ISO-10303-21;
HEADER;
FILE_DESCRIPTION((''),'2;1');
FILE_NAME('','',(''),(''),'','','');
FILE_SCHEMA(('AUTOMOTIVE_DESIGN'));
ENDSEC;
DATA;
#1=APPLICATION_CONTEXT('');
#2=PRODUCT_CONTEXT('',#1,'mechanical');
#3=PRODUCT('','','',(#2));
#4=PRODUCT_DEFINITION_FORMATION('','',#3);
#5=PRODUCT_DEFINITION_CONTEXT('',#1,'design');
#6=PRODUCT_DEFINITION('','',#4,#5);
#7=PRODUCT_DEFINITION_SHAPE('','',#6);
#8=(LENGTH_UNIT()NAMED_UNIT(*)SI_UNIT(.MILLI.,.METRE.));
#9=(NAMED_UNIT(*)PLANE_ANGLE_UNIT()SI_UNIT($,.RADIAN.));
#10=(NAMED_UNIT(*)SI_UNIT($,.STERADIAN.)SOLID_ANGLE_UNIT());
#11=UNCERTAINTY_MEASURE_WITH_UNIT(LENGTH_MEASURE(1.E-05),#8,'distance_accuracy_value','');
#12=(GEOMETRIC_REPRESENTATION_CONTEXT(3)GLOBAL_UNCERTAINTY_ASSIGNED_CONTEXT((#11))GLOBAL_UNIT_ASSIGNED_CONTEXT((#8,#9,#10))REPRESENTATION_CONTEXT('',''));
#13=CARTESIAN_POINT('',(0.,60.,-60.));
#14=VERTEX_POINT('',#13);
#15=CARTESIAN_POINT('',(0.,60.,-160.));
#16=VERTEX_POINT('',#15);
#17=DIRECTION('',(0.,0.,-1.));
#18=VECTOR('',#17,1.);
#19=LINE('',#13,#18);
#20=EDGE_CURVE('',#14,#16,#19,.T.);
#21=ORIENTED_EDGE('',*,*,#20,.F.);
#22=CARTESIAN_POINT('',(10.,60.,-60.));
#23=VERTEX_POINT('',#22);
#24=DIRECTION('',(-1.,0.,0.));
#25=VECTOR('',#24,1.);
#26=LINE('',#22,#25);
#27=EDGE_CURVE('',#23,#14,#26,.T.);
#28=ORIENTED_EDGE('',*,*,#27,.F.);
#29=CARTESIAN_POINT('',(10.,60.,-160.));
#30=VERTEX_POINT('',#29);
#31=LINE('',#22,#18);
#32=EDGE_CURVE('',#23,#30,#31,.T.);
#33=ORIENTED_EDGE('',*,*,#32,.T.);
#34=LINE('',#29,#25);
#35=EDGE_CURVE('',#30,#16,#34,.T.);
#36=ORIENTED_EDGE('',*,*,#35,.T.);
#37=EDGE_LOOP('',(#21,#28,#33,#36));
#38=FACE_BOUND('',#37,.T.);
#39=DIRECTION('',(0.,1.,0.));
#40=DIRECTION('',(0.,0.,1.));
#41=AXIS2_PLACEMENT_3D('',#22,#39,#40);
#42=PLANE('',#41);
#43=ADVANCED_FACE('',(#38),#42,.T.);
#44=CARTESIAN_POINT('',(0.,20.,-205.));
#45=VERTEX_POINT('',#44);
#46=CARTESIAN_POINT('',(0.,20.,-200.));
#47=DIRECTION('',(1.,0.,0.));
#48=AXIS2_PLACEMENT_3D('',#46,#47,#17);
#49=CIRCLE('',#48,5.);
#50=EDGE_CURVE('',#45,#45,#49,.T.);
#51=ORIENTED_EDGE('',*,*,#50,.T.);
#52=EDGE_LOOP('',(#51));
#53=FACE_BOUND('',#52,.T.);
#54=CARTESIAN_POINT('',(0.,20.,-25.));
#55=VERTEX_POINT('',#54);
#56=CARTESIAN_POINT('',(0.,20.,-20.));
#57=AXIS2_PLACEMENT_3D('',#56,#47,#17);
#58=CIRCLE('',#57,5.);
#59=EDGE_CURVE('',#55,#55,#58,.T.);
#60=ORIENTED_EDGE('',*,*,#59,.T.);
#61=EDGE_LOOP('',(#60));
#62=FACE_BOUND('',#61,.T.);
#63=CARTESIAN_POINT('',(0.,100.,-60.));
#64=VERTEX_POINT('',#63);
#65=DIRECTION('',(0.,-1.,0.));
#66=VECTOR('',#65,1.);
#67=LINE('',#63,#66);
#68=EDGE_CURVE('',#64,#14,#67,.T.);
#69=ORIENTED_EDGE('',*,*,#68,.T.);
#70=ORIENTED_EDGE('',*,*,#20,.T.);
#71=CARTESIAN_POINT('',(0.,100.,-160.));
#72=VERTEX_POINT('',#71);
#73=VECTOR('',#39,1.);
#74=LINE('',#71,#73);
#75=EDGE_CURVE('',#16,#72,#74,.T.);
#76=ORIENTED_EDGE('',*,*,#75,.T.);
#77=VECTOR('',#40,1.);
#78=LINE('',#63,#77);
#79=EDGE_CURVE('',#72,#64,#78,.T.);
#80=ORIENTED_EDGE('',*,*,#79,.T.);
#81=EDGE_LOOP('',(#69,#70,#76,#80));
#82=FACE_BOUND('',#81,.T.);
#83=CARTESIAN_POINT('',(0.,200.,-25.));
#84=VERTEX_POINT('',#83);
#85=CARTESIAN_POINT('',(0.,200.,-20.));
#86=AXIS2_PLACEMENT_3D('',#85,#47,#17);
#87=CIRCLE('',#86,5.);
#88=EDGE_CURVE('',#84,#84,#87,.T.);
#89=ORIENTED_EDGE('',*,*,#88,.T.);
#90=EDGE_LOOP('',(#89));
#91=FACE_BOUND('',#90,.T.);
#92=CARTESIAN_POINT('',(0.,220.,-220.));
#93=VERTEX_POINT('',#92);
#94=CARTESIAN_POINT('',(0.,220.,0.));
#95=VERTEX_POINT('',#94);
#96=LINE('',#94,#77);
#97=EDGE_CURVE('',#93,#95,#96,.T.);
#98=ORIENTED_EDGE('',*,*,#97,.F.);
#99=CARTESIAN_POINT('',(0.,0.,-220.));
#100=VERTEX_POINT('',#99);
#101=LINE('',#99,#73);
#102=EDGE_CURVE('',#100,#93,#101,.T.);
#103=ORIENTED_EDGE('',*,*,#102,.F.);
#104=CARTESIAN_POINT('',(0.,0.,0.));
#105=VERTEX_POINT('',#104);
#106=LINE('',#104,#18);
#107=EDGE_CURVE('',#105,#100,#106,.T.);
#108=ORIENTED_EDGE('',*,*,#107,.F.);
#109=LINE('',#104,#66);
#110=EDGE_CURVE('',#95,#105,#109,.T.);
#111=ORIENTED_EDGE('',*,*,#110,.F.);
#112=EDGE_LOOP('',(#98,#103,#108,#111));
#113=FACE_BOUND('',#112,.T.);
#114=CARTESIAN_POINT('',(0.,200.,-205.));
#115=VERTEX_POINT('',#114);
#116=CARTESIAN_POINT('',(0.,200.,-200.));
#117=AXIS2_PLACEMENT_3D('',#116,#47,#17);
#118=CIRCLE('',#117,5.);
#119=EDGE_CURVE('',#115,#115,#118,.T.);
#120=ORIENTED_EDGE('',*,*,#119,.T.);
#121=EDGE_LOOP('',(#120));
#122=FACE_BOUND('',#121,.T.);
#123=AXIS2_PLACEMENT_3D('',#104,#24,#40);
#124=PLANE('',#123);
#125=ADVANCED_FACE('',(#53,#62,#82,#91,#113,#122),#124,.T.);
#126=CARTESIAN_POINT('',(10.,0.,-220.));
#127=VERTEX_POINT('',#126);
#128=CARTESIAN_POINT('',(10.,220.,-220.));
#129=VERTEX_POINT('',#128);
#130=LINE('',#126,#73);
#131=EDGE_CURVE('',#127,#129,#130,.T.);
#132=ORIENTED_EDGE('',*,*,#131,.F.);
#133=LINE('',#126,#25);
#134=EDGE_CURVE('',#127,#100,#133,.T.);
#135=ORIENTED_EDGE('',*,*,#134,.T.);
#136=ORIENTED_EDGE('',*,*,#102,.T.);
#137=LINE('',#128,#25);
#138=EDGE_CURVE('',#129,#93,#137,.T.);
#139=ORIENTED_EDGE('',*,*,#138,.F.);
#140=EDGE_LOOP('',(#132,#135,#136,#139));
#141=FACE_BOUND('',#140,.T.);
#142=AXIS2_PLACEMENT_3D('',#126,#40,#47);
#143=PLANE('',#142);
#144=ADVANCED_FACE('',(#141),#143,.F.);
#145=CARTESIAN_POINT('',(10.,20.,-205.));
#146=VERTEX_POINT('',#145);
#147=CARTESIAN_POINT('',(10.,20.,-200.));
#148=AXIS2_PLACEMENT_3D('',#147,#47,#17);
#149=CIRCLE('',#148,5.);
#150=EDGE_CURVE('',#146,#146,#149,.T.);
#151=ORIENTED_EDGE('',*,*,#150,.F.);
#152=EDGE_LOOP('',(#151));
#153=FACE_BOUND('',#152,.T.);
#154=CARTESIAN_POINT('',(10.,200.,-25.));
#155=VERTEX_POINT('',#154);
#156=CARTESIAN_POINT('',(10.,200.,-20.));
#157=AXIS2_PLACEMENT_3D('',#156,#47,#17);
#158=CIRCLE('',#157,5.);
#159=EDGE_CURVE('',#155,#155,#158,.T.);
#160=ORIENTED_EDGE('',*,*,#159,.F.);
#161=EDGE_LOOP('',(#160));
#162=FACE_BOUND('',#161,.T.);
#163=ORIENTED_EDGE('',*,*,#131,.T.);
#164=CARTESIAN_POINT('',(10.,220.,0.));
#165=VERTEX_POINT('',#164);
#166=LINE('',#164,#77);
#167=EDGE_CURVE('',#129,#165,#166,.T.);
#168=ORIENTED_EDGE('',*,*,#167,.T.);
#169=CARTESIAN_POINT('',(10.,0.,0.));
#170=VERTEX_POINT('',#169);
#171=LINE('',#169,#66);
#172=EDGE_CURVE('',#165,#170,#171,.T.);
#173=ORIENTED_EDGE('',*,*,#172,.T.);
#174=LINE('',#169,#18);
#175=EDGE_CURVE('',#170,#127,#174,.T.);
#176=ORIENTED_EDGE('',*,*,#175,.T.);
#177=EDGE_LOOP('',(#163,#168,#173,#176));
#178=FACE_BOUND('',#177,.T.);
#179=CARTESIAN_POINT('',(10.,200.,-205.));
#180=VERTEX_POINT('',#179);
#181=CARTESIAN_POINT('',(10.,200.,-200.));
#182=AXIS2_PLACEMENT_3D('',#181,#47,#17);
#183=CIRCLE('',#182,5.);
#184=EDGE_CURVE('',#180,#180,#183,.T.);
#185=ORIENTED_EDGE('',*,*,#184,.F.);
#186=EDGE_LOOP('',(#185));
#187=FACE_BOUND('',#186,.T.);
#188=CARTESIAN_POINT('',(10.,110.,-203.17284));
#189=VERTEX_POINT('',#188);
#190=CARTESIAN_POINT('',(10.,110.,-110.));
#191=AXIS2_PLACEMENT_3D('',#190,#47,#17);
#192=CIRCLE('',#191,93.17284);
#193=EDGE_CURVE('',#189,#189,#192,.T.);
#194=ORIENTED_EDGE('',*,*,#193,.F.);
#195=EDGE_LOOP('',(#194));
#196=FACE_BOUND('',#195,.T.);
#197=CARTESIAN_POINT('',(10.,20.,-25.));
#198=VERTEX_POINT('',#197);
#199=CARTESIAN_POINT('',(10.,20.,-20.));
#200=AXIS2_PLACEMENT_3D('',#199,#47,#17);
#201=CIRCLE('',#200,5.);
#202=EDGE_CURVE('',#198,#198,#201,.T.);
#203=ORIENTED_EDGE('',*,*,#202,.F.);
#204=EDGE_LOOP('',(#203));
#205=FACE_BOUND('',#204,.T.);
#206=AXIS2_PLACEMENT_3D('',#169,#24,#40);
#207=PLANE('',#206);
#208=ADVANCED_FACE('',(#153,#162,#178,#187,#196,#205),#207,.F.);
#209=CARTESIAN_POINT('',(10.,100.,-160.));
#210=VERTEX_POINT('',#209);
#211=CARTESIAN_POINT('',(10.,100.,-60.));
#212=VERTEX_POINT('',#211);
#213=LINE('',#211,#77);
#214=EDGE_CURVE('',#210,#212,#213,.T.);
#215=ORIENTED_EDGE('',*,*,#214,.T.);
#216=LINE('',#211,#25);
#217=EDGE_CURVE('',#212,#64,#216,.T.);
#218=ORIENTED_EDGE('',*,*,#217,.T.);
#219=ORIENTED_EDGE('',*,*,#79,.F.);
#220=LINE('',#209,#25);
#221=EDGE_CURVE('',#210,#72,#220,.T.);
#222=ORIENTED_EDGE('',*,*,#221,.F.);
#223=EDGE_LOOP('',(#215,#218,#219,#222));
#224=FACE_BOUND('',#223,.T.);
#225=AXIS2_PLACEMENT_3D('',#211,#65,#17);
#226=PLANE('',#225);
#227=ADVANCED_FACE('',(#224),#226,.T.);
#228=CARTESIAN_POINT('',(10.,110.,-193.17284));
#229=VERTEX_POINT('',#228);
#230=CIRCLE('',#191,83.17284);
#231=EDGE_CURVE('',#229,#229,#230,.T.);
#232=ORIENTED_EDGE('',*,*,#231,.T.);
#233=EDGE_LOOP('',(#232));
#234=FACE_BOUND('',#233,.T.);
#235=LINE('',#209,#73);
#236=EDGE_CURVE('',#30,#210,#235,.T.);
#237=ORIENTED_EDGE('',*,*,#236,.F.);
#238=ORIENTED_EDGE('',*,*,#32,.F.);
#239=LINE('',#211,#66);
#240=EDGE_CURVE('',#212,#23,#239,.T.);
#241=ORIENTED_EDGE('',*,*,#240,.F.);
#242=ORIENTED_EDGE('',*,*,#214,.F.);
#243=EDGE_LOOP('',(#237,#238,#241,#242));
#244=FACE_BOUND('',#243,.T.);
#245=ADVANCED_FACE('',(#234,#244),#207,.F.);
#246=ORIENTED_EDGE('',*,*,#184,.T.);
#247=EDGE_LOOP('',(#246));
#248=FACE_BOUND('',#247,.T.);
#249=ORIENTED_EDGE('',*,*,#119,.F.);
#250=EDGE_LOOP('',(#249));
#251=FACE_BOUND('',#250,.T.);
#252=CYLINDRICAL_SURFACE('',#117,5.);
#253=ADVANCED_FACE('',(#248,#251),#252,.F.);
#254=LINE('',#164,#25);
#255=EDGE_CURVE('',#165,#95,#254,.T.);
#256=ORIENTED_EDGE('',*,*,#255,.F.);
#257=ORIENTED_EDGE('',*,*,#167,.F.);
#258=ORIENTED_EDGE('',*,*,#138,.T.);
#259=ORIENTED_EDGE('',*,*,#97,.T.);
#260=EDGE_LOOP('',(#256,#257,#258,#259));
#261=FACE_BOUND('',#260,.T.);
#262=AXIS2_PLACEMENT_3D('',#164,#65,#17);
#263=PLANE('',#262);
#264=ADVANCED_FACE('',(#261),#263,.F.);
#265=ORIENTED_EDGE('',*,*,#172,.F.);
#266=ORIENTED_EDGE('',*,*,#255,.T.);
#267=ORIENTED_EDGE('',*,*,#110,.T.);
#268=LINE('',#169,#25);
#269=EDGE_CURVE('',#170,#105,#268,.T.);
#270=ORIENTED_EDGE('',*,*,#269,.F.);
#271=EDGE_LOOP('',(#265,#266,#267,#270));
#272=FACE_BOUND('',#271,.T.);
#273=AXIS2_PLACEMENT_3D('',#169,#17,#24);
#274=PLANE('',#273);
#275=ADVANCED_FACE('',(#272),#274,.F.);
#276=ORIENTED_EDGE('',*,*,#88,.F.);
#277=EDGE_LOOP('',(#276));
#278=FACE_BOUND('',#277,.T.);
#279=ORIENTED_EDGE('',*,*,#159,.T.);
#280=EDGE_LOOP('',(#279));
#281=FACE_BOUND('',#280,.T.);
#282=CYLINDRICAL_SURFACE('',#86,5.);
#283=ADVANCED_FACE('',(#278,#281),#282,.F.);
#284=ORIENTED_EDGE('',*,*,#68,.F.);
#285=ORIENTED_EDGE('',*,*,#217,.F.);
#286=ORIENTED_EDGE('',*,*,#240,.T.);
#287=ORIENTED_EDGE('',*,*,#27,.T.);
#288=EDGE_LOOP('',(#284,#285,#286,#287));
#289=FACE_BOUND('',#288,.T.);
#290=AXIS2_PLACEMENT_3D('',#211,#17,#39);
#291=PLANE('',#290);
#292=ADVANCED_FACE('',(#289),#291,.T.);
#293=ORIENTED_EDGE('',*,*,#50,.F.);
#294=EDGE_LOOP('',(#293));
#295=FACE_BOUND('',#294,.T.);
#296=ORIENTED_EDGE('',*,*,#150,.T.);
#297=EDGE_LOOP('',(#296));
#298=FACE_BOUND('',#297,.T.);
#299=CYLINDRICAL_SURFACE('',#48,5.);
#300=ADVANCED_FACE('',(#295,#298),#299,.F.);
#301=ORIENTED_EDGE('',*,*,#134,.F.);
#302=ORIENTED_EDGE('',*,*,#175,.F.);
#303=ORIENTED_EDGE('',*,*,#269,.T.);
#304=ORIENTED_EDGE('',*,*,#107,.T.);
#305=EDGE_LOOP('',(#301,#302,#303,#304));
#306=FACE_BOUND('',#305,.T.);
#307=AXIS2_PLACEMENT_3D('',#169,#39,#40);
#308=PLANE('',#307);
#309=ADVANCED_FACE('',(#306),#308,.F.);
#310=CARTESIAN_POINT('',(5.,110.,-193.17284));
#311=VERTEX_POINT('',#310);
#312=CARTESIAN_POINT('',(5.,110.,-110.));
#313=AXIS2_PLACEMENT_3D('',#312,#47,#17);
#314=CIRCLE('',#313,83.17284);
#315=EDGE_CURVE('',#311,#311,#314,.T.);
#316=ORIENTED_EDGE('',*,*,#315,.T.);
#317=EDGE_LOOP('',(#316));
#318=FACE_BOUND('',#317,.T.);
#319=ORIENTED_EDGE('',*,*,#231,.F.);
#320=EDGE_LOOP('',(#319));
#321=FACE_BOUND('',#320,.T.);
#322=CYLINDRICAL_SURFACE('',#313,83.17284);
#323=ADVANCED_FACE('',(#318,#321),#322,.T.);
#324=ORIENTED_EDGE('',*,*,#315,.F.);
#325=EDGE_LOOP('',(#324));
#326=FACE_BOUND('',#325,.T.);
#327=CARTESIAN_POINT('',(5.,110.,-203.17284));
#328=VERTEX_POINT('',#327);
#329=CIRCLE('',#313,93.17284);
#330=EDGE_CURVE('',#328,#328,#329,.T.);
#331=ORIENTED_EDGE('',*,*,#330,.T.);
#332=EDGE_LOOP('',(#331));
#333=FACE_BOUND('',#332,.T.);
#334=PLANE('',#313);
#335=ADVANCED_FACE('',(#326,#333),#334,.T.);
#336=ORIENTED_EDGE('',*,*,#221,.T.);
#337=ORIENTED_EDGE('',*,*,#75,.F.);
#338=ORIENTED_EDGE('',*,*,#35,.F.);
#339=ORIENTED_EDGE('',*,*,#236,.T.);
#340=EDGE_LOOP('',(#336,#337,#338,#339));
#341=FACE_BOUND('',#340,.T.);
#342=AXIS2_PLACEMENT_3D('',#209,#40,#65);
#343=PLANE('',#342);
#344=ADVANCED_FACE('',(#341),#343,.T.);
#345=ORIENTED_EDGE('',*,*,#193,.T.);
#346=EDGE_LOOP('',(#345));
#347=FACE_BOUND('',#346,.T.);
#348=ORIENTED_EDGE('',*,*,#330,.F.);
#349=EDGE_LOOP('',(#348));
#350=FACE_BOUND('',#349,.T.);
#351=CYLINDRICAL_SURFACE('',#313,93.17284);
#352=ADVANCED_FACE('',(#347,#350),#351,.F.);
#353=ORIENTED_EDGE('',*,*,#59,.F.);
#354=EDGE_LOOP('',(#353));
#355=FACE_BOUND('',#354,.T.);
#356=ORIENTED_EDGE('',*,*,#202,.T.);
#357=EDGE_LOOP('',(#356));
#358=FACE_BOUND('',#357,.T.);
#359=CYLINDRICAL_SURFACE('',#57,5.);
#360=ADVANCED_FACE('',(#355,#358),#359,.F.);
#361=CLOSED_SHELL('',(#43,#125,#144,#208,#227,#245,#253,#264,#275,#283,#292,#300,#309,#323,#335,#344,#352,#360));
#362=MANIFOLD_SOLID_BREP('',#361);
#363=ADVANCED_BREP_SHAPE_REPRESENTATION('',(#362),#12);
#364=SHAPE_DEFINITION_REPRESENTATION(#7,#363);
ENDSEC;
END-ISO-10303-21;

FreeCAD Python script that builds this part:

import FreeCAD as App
import Part
import Sketcher
Q = App.Units.Quantity

doc = App.newDocument("Part")
params = doc.addObject("Spreadsheet::Sheet", "Params")
for row, (alias, value) in enumerate([
    ("sketch1_width", "220 mm"),
    ("sketch1_width2", "40 mm"),
    ("sketch1_height", "100 mm"),
    ("pad1_length", "10 mm"),
    ("pocket1_length", "5 mm"),
    ("sketch3_diameter", "10 mm"),
], start=1):
    params.set(f"A{row}", alias)
    params.set(f"B{row}", "=" + value)
    params.setAlias(f"B{row}", alias)

body = doc.addObject("PartDesign::Body", "Body")

# Sketch on YZ plane
sketch1 = doc.addObject("Sketcher::SketchObject", "Sketch")
body.addObject(sketch1)
sketch1.AttachmentSupport = (doc.YZ_Plane, [""])
sketch1.MapMode = "FlatFace"
sketch1.addGeometry([
    Part.LineSegment(App.Vector(220, 0, 0), App.Vector(0, 0, 0)),  # 0
    Part.LineSegment(App.Vector(0, 0, 0), App.Vector(0, -220, 0)),  # 1
    Part.LineSegment(App.Vector(0, -220, 0), App.Vector(220, -220, 0)),  # 2
    Part.LineSegment(App.Vector(220, -220, 0), App.Vector(220, 0, 0)),  # 3
    Part.LineSegment(App.Vector(60, -160, 0), App.Vector(60, -60, 0)),  # 4
    Part.LineSegment(App.Vector(60, -60, 0), App.Vector(100, -60, 0)),  # 5
    Part.LineSegment(App.Vector(100, -60, 0), App.Vector(100, -160, 0)),  # 6
    Part.LineSegment(App.Vector(100, -160, 0), App.Vector(60, -160, 0)),  # 7
], False)
sketch1.addConstraint([
    Sketcher.Constraint("Coincident", 0, 2, 1, 1),
    Sketcher.Constraint("Coincident", 1, 2, 2, 1),
    Sketcher.Constraint("Coincident", 2, 2, 3, 1),
    Sketcher.Constraint("Coincident", 3, 2, 0, 1),
    Sketcher.Constraint("Coincident", 4, 2, 5, 1),
    Sketcher.Constraint("Coincident", 5, 2, 6, 1),
    Sketcher.Constraint("Coincident", 6, 2, 7, 1),
    Sketcher.Constraint("Coincident", 7, 2, 4, 1),
    Sketcher.Constraint("Horizontal", 0),
    Sketcher.Constraint("Vertical", 1),
    Sketcher.Constraint("Horizontal", 2),
    Sketcher.Constraint("Vertical", 3),
    Sketcher.Constraint("Vertical", 4),
    Sketcher.Constraint("Horizontal", 5),
    Sketcher.Constraint("Vertical", 6),
    Sketcher.Constraint("Horizontal", 7),
    Sketcher.Constraint("Coincident", 0, 2, -1, 1),
    Sketcher.Constraint("Equal", 2, 1),
    Sketcher.Constraint("DistanceX", 0, 2, 0, 1, Q("220 mm")),
    Sketcher.Constraint("DistanceX", 5, 1, 5, 2, Q("40 mm")),
    Sketcher.Constraint("DistanceY", 4, 1, 4, 2, Q("100 mm")),
    Sketcher.Constraint("DistanceX", -1, 1, 4, 2, Q("60 mm")),
    Sketcher.Constraint("DistanceY", 4, 2, -1, 1, Q("60 mm")),
])
sketch1.setExpression("Constraints[18]", "Params.sketch1_width")
sketch1.setExpression("Constraints[19]", "Params.sketch1_width2")
sketch1.setExpression("Constraints[20]", "Params.sketch1_height")
pad1 = doc.addObject("PartDesign::Pad", "Pad")
body.addObject(pad1)
pad1.Profile = sketch1
pad1.setExpression("Length", "Params.pad1_length")

# Sketch on YZ plane
sketch2 = doc.addObject("Sketcher::SketchObject", "Sketch001")
body.addObject(sketch2)
sketch2.AttachmentSupport = (doc.YZ_Plane, [""])
sketch2.MapMode = "FlatFace"
sketch2.AttachmentOffset = App.Placement(App.Vector(0, 0, 10), App.Rotation())
sketch2.addGeometry([
    Part.Circle(App.Vector(110, -110, 0), App.Vector(0, 0, 1), 93),
    Part.Circle(App.Vector(110, -110, 0), App.Vector(0, 0, 1), 83),
], False)
sketch2.addConstraint([
    Sketcher.Constraint("Coincident", 1, 3, 0, 3),
    Sketcher.Constraint("DistanceX", -1, 1, 0, 3, Q("110 mm")),
    Sketcher.Constraint("DistanceY", 0, 3, -1, 1, Q("110 mm")),
    Sketcher.Constraint("Diameter", 0, Q("186.34568 mm")),
    Sketcher.Constraint("Diameter", 1, Q("166.34568 mm")),
])
pocket1 = doc.addObject("PartDesign::Pocket", "Pocket")
body.addObject(pocket1)
pocket1.Profile = sketch2
pocket1.setExpression("Length", "Params.pocket1_length")

# Sketch on YZ plane
sketch3 = doc.addObject("Sketcher::SketchObject", "Sketch002")
body.addObject(sketch3)
sketch3.AttachmentSupport = (doc.YZ_Plane, [""])
sketch3.MapMode = "FlatFace"
sketch3.AttachmentOffset = App.Placement(App.Vector(0, 0, 10), App.Rotation())
sketch3.addGeometry([
    Part.Circle(App.Vector(200, -20, 0), App.Vector(0, 0, 1), 5),
    Part.Circle(App.Vector(200, -200, 0), App.Vector(0, 0, 1), 5),
    Part.Circle(App.Vector(20, -200, 0), App.Vector(0, 0, 1), 5),
    Part.Circle(App.Vector(20, -20, 0), App.Vector(0, 0, 1), 5),
], False)
sketch3.addConstraint([
    Sketcher.Constraint("Equal", 0, 1),
    Sketcher.Constraint("Equal", 1, 2),
    Sketcher.Constraint("Equal", 2, 3),
    Sketcher.Constraint("Horizontal", 1, 3, 2, 3),
    Sketcher.Constraint("Horizontal", 0, 3, 3, 3),
    Sketcher.Constraint("Vertical", 0, 3, 1, 3),
    Sketcher.Constraint("Vertical", 2, 3, 3, 3),
    Sketcher.Constraint("Diameter", 0, Q("10 mm")),
    Sketcher.Constraint("DistanceX", -1, 1, 0, 3, Q("200 mm")),
    Sketcher.Constraint("DistanceY", 0, 3, -1, 1, Q("20 mm")),
    Sketcher.Constraint("DistanceY", 1, 3, -1, 1, Q("200 mm")),
    Sketcher.Constraint("DistanceX", -1, 1, 2, 3, Q("20 mm")),
])
sketch3.setExpression("Constraints[7]", "Params.sketch3_diameter")
pocket2 = doc.addObject("PartDesign::Pocket", "Pocket001")
body.addObject(pocket2)
pocket2.Profile = sketch3
pocket2.Type = "ThroughAll"

doc.recompute()
